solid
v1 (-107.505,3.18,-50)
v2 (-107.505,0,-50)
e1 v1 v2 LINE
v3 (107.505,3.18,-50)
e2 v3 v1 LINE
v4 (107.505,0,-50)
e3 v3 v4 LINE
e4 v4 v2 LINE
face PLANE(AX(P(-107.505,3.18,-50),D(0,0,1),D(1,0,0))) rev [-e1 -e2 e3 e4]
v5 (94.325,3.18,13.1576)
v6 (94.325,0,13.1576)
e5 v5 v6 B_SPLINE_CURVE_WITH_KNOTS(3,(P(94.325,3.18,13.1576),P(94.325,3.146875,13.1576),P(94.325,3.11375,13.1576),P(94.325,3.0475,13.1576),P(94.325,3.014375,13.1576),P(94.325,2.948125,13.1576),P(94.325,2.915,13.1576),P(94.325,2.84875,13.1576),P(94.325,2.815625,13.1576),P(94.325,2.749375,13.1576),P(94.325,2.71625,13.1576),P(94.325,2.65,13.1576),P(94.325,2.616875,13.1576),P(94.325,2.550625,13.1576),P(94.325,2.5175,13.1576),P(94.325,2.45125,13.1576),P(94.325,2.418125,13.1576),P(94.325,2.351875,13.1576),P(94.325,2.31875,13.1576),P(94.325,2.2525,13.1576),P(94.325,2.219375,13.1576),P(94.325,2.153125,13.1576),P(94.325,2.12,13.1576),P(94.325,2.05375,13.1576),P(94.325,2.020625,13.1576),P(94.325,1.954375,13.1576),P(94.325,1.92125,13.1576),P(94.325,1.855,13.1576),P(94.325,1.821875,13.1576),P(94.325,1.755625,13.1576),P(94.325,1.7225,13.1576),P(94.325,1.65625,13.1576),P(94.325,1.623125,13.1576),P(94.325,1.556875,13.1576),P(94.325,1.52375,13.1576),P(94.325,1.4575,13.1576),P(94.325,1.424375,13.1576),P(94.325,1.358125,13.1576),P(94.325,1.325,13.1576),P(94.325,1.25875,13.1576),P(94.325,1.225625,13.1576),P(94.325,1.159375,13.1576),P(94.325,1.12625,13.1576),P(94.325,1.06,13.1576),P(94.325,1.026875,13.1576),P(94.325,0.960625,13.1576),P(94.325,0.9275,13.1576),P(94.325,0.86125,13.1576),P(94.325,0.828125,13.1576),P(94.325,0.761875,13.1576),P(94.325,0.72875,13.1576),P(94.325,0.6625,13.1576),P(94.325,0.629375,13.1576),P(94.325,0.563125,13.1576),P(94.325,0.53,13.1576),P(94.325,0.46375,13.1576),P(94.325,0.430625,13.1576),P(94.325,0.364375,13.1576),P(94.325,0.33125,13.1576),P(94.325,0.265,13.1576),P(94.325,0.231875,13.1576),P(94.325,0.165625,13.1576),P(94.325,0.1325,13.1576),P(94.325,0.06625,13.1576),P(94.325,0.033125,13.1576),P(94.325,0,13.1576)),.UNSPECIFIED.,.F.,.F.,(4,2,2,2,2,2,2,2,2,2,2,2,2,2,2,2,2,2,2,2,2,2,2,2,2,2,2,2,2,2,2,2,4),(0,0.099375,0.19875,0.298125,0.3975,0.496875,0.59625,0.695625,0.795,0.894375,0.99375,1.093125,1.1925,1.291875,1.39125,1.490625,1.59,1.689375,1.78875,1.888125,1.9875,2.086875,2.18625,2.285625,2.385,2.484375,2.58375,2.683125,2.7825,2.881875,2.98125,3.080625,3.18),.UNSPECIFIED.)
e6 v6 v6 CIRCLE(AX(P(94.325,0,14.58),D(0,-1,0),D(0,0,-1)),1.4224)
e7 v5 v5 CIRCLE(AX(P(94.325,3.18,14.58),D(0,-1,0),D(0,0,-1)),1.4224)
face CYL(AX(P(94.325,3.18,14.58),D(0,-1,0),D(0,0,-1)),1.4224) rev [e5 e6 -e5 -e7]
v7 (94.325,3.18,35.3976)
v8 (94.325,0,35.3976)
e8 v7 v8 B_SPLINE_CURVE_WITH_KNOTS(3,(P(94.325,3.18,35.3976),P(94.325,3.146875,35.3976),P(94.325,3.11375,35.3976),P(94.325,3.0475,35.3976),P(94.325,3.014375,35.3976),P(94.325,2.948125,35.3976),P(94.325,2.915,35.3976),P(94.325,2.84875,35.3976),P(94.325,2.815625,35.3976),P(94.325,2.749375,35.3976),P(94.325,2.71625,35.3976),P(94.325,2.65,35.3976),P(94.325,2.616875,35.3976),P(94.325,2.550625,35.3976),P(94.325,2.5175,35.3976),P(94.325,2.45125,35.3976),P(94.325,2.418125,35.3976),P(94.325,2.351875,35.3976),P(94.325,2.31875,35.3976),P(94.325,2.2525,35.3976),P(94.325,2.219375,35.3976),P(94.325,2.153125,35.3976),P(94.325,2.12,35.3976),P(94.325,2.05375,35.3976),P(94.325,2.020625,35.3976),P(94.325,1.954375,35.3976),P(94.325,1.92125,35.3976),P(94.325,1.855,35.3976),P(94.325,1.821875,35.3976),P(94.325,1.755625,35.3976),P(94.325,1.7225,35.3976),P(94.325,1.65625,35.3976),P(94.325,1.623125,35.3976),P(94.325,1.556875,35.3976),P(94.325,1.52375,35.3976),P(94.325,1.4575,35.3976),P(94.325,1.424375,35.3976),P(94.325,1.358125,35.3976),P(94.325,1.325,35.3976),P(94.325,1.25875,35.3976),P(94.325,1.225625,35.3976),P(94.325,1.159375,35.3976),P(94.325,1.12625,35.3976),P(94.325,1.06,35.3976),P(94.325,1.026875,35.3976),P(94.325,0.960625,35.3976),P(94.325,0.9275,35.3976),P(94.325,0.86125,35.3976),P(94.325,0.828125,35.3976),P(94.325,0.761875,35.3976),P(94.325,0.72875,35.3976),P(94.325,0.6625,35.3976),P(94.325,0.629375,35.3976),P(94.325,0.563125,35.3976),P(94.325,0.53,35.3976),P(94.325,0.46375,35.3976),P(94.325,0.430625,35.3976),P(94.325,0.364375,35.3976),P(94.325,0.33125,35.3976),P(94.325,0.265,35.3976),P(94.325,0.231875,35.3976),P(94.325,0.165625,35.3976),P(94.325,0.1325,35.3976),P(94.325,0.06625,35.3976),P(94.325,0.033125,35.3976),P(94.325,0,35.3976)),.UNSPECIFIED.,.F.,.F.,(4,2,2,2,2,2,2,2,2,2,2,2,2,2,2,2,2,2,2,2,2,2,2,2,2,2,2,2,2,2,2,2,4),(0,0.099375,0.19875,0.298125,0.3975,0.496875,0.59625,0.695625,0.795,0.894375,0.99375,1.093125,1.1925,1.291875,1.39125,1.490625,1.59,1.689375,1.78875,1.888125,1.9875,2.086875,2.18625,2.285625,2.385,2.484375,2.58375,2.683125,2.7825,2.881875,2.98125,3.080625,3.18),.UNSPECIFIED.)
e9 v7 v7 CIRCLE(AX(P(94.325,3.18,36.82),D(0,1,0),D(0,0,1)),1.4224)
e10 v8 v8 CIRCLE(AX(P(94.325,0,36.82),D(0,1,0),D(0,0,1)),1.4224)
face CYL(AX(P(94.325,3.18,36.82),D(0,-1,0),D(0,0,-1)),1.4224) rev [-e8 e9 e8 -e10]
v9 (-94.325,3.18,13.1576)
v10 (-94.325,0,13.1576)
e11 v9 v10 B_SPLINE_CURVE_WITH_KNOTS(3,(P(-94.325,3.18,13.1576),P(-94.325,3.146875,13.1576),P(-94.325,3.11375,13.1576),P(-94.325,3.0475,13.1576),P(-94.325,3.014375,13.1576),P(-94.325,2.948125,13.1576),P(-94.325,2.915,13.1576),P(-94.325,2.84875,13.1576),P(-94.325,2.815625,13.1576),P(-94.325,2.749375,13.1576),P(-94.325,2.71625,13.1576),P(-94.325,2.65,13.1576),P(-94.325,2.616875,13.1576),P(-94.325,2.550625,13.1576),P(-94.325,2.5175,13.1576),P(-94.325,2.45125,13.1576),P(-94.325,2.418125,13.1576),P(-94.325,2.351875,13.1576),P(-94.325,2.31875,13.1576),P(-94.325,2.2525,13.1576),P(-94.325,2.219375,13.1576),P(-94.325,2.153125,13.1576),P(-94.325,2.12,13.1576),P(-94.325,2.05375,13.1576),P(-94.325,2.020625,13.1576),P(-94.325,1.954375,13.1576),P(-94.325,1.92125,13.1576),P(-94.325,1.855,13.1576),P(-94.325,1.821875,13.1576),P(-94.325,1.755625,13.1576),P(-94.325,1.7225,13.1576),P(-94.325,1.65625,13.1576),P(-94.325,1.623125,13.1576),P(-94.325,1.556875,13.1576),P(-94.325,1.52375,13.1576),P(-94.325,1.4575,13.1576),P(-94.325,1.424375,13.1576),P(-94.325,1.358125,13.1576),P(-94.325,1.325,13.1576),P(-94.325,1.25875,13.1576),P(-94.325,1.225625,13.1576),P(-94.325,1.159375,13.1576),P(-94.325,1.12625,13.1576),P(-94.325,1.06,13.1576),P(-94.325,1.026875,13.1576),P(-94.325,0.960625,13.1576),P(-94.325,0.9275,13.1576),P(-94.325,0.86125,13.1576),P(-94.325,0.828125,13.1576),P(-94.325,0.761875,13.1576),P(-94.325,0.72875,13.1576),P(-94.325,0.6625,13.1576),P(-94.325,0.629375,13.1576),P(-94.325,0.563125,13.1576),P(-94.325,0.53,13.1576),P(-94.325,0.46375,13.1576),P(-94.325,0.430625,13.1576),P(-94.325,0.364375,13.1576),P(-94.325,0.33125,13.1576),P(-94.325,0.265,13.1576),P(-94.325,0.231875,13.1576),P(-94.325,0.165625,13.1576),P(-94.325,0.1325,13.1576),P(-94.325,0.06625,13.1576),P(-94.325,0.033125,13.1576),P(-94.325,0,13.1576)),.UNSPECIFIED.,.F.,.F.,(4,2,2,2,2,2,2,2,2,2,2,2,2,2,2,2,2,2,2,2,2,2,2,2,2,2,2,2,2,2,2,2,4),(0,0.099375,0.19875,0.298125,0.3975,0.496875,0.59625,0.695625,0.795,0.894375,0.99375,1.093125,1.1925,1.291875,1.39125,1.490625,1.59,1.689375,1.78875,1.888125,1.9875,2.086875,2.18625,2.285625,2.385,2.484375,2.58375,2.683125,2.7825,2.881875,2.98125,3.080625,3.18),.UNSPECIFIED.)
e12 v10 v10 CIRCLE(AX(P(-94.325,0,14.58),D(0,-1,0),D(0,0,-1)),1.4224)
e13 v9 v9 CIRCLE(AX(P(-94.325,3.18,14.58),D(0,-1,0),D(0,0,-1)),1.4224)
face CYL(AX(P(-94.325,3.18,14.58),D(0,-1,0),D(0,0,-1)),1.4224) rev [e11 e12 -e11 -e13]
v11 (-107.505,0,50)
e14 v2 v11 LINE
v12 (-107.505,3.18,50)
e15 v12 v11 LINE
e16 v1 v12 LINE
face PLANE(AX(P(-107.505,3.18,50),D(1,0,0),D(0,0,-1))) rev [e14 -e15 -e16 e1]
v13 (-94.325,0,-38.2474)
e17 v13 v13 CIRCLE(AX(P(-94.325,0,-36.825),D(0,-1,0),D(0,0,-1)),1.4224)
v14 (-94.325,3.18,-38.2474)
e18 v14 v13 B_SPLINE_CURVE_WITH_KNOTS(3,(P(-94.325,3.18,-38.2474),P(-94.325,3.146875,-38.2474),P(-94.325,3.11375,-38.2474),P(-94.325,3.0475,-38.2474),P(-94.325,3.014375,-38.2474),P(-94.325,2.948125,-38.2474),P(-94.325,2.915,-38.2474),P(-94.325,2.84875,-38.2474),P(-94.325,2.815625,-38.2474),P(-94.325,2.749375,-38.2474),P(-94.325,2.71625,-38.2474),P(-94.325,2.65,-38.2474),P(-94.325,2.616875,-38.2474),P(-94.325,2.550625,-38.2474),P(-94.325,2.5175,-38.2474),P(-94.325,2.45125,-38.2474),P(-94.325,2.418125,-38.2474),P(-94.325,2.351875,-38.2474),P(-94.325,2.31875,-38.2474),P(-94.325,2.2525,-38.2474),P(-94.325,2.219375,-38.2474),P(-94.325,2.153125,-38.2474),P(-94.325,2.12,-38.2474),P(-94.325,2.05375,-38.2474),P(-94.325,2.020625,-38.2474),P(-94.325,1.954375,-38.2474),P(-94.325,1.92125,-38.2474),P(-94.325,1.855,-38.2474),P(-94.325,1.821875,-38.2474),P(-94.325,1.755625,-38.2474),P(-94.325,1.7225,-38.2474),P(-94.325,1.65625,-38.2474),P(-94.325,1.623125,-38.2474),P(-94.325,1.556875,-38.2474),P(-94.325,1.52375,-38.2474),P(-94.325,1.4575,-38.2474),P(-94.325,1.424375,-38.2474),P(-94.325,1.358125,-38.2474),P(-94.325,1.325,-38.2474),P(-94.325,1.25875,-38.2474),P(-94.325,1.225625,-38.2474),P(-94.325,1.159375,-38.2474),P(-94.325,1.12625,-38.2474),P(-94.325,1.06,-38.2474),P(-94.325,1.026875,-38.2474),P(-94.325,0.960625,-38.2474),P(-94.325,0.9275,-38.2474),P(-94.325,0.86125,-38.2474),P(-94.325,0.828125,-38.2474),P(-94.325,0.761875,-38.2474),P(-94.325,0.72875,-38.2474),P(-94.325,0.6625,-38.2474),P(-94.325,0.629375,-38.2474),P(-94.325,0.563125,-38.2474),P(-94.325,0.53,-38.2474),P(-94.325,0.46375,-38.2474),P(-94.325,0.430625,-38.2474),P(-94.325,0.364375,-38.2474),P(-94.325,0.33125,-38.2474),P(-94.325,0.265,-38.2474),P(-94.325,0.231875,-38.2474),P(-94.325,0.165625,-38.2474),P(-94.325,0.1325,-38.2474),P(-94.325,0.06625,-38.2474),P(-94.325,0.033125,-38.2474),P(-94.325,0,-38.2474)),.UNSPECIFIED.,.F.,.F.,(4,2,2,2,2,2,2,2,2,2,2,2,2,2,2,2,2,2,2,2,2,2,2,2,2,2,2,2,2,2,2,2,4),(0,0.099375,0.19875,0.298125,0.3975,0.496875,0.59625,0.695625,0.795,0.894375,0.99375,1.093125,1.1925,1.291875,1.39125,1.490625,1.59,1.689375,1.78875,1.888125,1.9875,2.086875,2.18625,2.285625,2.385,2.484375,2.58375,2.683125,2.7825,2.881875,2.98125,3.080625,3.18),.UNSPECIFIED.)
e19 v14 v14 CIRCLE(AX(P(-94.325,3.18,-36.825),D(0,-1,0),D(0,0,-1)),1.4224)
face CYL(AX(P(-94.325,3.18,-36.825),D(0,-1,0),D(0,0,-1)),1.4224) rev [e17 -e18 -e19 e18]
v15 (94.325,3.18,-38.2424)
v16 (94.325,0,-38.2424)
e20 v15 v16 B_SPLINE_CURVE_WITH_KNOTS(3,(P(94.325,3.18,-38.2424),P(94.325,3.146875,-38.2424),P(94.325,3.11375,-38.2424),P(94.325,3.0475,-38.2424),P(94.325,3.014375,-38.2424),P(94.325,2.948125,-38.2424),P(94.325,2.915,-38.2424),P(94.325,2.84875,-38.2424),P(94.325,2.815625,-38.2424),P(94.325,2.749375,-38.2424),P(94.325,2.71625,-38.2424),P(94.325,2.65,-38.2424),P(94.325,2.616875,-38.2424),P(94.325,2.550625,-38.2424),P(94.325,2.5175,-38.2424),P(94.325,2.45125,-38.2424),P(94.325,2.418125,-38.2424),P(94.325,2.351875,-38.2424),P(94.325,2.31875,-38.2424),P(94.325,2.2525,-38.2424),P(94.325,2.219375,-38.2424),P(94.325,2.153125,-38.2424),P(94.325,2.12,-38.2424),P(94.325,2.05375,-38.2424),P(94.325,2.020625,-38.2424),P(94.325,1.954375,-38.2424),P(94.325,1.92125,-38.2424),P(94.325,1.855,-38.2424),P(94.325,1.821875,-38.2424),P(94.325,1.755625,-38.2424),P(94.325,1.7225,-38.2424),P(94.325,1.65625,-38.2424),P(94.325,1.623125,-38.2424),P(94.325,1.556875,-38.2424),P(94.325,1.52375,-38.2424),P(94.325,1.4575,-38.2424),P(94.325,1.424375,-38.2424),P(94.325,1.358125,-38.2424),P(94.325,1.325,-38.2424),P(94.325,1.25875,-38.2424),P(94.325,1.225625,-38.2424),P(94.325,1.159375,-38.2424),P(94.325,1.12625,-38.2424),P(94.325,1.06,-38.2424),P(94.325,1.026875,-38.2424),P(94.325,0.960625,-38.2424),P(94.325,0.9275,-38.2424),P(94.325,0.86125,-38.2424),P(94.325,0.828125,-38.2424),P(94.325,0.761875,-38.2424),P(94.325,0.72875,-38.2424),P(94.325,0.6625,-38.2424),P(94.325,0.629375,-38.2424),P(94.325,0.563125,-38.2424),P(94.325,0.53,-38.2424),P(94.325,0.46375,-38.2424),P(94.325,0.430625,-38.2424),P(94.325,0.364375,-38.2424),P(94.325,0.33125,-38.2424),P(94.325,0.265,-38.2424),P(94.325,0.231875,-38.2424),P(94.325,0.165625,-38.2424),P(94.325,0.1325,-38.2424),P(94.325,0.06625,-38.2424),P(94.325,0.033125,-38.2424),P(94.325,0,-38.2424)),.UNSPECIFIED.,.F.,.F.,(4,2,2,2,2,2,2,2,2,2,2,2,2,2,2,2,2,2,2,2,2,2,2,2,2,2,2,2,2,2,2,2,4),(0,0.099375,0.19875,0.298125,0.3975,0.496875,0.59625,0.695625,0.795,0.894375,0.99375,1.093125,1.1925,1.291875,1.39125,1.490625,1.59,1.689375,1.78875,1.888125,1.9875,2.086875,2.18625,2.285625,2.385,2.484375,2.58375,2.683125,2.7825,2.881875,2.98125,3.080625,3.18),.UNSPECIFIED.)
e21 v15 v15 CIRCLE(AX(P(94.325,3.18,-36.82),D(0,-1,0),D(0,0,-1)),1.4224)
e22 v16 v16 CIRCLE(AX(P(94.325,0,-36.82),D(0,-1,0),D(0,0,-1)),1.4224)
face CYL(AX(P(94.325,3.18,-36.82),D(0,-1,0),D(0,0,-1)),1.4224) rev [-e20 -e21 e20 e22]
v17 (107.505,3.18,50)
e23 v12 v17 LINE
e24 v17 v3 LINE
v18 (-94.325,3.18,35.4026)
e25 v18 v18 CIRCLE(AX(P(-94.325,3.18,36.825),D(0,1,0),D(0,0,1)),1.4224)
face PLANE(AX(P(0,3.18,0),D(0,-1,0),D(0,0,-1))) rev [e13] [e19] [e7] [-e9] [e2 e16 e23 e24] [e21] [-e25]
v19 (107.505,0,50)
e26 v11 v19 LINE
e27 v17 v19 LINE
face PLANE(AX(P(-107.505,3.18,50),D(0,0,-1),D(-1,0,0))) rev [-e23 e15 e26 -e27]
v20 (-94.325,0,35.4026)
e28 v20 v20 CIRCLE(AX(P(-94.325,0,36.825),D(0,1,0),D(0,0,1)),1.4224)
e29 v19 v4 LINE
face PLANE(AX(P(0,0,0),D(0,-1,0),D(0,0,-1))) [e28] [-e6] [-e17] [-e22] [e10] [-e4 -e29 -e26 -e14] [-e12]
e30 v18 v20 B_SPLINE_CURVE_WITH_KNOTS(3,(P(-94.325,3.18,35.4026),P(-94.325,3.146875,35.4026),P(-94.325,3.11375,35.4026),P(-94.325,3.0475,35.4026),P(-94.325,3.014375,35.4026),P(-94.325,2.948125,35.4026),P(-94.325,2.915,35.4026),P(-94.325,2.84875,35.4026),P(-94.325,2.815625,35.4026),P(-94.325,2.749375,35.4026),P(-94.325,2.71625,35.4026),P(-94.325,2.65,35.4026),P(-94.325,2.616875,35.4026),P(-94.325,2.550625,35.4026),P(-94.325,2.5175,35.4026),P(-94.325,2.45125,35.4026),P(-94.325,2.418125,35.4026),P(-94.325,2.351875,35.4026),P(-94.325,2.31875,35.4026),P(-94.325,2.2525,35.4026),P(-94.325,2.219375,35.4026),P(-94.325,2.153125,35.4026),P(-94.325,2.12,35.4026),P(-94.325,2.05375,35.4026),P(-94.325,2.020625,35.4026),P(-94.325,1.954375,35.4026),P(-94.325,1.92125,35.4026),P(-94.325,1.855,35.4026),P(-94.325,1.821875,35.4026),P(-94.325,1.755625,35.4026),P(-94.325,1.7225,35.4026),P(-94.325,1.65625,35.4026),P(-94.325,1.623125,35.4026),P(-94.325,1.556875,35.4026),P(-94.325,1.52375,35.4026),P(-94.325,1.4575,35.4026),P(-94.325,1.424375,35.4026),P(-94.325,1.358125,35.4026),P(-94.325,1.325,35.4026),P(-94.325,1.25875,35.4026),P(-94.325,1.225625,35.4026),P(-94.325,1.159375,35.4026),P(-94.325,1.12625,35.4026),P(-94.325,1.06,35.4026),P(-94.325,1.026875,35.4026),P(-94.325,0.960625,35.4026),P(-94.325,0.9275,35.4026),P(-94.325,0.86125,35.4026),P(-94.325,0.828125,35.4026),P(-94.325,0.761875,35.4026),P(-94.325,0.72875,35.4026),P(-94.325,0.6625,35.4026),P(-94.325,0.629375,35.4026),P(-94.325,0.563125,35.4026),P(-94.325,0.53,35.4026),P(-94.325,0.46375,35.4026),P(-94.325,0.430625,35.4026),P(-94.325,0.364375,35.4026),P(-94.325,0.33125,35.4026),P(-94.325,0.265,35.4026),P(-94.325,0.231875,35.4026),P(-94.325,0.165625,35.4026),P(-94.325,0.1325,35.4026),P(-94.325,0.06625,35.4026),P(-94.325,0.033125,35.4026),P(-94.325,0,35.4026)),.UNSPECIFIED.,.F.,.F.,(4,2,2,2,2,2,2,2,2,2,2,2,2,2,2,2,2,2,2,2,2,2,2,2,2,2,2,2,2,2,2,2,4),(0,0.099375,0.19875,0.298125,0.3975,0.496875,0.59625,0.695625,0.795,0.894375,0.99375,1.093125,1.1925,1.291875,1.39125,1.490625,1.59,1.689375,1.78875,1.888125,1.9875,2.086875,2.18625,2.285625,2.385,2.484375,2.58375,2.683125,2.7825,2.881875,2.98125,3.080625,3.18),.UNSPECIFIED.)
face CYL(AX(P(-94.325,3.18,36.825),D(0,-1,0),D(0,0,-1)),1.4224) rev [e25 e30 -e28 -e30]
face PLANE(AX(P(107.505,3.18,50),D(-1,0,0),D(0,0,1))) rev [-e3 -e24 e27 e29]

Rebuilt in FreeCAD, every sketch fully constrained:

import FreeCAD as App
import Part
import Sketcher


def add_polygon(sketch, points):
    """Adds a closed chain of lines whose ends are joined by coincident constraints."""
    first, n = sketch.GeometryCount, len(points)
    for a, b in zip(points, points[1:] + points[:1]):
        sketch.addGeometry(Part.LineSegment(App.Vector(*a, 0), App.Vector(*b, 0)), False)
    for i in range(n):
        sketch.addConstraint(Sketcher.Constraint("Coincident", first + i, 2, first + (i + 1) % n, 1))

doc = App.newDocument("Part")
params = doc.addObject("Spreadsheet::Sheet", "Params")
for row, (alias, value) in enumerate([
    ("sketch1_height", "100 mm"),
    ("sketch1_width", "215.01 mm"),
    ("pad1_length", "3.18 mm"),
    ("pocket1_length", "3.18 mm"),
    ("pocket2_length", "3.18 mm"),
], start=1):
    params.set(f"A{row}", alias)
    params.set(f"B{row}", "=" + value)
    params.setAlias(f"B{row}", alias)

body = doc.addObject("PartDesign::Body", "Body")

# Sketch on XZ plane
sketch1 = doc.addObject("Sketcher::SketchObject", "Sketch")
body.addObject(sketch1)
sketch1.AttachmentSupport = (doc.XZ_Plane, [""])
sketch1.MapMode = "FlatFace"
add_polygon(sketch1, [(-108, -50), (-108, 50), (108, 50), (108, -50)])  # lines 0-3
sketch1.addConstraint([
    Sketcher.Constraint("Vertical", 0),
    Sketcher.Constraint("Horizontal", 1),
    Sketcher.Constraint("Vertical", 2),
    Sketcher.Constraint("Horizontal", 3),
    Sketcher.Constraint("Symmetric", 0, 2, 2, 2, -1, 1),
    Sketcher.Constraint("DistanceY", 0, 1, 0, 2, 100.0),
    Sketcher.Constraint("DistanceX", 1, 1, 1, 2, 215.01),
])
sketch1.setExpression("Constraints[9]", "Params.sketch1_height")
sketch1.setExpression("Constraints[10]", "Params.sketch1_width")
pad1 = doc.addObject("PartDesign::Pad", "Pad")
body.addObject(pad1)
pad1.Profile = sketch1
pad1.setExpression("Length", "Params.pad1_length")
pad1.Reversed = True

# Sketch on XZ plane
sketch2 = doc.addObject("Sketcher::SketchObject", "Sketch001")
body.addObject(sketch2)
sketch2.AttachmentSupport = (doc.XZ_Plane, [""])
sketch2.MapMode = "FlatFace"
sketch2.addGeometry([
    Part.Circle(App.Vector(-94.3, -36.8, 0), App.Vector(0, 0, 1), 1.4),
    Part.Circle(App.Vector(94.3, -36.8, 0), App.Vector(0, 0, 1), 1.4),
], False)
sketch2.addConstraint([
    Sketcher.Constraint("Equal", 0, 1),
    Sketcher.Constraint("Diameter", 0, 2.8448),
    Sketcher.Constraint("DistanceY", 1, 3, -1, 1, 36.82),
    Sketcher.Constraint("DistanceX", 0, 3, 1, 3, 188.65),
    Sketcher.Constraint("DistanceX", 0, 3, -1, 1, 94.325),
    Sketcher.Constraint("DistanceY", 0, 3, -1, 1, 36.825),
])
pocket1 = doc.addObject("PartDesign::Pocket", "Pocket")
body.addObject(pocket1)
pocket1.Profile = sketch2
pocket1.setExpression("Length", "Params.pocket1_length")
doc.recompute()

mirrored = doc.addObject("PartDesign::Mirrored", "Mirrored")
body.addObject(mirrored)
mirrored.Originals = [pocket1]
mirrored.MirrorPlane = (doc.XY_Plane, [""])
body.Tip = mirrored

# Sketch on XZ plane
sketch3 = doc.addObject("Sketcher::SketchObject", "Sketch002")
body.addObject(sketch3)
sketch3.AttachmentSupport = (doc.XZ_Plane, [""])
sketch3.MapMode = "FlatFace"
sketch3.addGeometry([
    Part.Circle(App.Vector(-94.3, 14.6, 0), App.Vector(0, 0, 1), 1.4),
    Part.Circle(App.Vector(94.3, 14.6, 0), App.Vector(0, 0, 1), 1.4),
], False)
sketch3.addConstraint([
    Sketcher.Constraint("Equal", 0, 1),
    Sketcher.Constraint("Symmetric", 0, 3, 1, 3, -2),
    Sketcher.Constraint("Diameter", 0, 2.8448),
    Sketcher.Constraint("DistanceY", -1, 1, 0, 3, 14.58),
    Sketcher.Constraint("DistanceX", 0, 3, 1, 3, 188.65),
])
pocket2 = doc.addObject("PartDesign::Pocket", "Pocket001")
body.addObject(pocket2)
pocket2.Profile = sketch3
pocket2.setExpression("Length", "Params.pocket2_length")

doc.recompute()
